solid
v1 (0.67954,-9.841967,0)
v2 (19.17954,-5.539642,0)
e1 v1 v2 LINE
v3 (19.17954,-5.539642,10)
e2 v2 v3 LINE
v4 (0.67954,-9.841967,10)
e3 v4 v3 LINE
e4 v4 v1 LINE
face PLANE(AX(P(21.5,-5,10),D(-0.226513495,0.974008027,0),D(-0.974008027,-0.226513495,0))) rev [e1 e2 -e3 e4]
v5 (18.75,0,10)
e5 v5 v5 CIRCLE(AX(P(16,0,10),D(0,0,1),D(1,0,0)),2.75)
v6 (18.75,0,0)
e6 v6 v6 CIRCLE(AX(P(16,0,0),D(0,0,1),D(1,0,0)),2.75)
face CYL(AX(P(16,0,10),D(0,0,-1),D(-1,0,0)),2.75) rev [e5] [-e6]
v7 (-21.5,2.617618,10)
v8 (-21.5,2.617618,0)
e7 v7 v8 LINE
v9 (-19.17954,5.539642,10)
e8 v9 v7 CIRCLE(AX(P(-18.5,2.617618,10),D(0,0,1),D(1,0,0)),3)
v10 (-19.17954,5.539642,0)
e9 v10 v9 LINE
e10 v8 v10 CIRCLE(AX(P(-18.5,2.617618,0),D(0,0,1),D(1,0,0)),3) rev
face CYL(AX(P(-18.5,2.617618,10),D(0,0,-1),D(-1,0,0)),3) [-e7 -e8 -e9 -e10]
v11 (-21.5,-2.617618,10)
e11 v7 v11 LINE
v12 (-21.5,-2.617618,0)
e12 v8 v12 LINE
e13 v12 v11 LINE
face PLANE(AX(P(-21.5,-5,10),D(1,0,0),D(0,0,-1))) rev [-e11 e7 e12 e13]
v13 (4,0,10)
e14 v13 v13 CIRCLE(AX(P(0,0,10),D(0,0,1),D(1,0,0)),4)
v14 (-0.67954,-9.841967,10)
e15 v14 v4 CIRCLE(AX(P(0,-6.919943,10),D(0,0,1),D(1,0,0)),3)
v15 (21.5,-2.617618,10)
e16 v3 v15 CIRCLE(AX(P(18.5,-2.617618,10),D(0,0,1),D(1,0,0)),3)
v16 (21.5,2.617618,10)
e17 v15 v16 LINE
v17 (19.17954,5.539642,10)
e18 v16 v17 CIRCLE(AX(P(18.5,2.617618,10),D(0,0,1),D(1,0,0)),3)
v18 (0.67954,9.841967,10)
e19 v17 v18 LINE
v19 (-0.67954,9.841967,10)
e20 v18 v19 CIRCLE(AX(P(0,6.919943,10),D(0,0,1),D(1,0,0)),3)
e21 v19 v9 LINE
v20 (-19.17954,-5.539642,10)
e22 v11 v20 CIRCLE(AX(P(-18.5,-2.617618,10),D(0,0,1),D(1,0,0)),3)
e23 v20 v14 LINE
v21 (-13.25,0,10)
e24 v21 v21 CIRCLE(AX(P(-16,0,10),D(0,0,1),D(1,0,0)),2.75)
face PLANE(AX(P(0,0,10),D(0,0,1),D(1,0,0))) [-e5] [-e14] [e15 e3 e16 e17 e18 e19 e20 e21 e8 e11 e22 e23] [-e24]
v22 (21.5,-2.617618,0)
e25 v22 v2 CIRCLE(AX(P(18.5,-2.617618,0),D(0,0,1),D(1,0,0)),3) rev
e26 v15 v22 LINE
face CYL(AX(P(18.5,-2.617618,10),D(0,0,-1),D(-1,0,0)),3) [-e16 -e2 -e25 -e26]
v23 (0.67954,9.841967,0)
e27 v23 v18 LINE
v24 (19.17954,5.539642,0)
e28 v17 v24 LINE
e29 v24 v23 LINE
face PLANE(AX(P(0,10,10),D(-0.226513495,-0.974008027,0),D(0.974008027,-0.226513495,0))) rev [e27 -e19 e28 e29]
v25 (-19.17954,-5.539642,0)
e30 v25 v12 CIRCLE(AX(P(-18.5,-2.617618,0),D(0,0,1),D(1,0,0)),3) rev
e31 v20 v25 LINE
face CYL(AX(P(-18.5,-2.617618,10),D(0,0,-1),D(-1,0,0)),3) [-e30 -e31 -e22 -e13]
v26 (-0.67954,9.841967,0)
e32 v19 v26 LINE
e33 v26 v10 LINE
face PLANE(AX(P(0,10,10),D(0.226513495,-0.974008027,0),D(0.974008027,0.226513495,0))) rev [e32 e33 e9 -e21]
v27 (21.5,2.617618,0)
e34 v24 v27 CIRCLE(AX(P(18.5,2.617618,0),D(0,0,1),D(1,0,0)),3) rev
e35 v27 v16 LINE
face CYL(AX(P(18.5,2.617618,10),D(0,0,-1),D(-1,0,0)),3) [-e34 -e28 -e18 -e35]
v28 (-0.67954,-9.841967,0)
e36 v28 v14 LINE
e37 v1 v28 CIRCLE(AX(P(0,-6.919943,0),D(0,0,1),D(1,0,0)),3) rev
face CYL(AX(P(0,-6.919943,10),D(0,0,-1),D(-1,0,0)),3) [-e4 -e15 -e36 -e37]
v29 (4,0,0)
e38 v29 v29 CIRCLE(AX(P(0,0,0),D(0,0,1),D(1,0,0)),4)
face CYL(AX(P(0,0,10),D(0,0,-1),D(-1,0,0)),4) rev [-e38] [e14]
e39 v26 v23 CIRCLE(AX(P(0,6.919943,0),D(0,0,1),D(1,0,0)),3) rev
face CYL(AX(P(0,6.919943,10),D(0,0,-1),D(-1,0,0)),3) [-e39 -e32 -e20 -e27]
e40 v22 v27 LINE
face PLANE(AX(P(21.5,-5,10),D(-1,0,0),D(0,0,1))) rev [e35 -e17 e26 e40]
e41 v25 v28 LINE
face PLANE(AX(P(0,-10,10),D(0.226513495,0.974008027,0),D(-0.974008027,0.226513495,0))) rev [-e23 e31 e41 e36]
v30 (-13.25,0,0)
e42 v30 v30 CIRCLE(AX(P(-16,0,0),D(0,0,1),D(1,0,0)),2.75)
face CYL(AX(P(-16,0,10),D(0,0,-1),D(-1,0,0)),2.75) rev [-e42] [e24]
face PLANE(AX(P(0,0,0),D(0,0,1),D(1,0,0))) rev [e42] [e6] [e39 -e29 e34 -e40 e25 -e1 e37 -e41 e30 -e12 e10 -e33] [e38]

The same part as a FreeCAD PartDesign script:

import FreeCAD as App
import Part
import Sketcher
from FreeCAD import Vector


def edges_at(feature, points):
    """Names of the edges that pass closest to the given points."""
    edges = feature.Shape.Edges
    near = lambda p: min(range(len(edges)), key=lambda i: edges[i].distToShape(Part.Vertex(*p))[0])
    return sorted({f"Edge{near(p) + 1}" for p in points})


def add_polygon(sketch, points):
    """Adds a closed chain of lines whose ends are joined by coincident constraints."""
    first, n = sketch.GeometryCount, len(points)
    for a, b in zip(points, points[1:] + points[:1]):
        sketch.addGeometry(Part.LineSegment(App.Vector(*a, 0), App.Vector(*b, 0)), False)
    for i in range(n):
        sketch.addConstraint(Sketcher.Constraint("Coincident", first + i, 2, first + (i + 1) % n, 1))

doc = App.newDocument("Part")
body = doc.addObject("PartDesign::Body", "Body")

# Sketch on XY plane
sketch1 = doc.addObject("Sketcher::SketchObject", "Sketch")
body.addObject(sketch1)
sketch1.AttachmentSupport = (doc.XY_Plane, [""])
sketch1.MapMode = "FlatFace"
add_polygon(sketch1, [(-21.5, 5), (-21.5, -5), (0, -10), (21.5, -5), (21.5, 5), (0, 10)])  # lines 0-5
sketch1.addGeometry(Part.Circle(Vector(16, 0, 0), Vector(0, 0, 1), 2.75), False)  # 6
sketch1.addGeometry(Part.Circle(Vector(0, 0, 0), Vector(0, 0, 1), 4), False)  # 7
sketch1.addGeometry(Part.Circle(Vector(-16, 0, 0), Vector(0, 0, 1), 2.75), False)  # 8
sketch1.addConstraint([
    Sketcher.Constraint("Vertical", 0),
    Sketcher.Constraint("Vertical", 3),
    Sketcher.Constraint("Coincident", 7, 3, -1, 1),
    Sketcher.Constraint("Equal", 6, 8),
    Sketcher.Constraint("Symmetric", 6, 3, 8, 3, -1, 1),
    Sketcher.Constraint("Symmetric", 0, 2, 3, 2, -1, 1),
    Sketcher.Constraint("Symmetric", 1, 2, 4, 2, -1, 1),
    Sketcher.Constraint("PointOnObject", 6, 3, -1),
    Sketcher.Constraint("PointOnObject", 1, 2, -2),
    Sketcher.Constraint("Parallel", 2, 5),
    Sketcher.Constraint("Horizontal", 0, 2, 2, 2),
    Sketcher.Constraint("Diameter", 7, 8.0),
    Sketcher.Constraint("Diameter", 6, 5.5),
    Sketcher.Constraint("DistanceY", 0, 2, 0, 1, 10.0),
    Sketcher.Constraint("DistanceX", -1, 1, 6, 3, 16.0),
    Sketcher.Constraint("DistanceY", 1, 2, -1, 1, 10.0),
    Sketcher.Constraint("DistanceX", 0, 2, 2, 2, 43.0),
])
pad1 = doc.addObject("PartDesign::Pad", "Pad")
body.addObject(pad1)
pad1.Profile = sketch1
pad1.Length = 10
doc.recompute()

fillet = doc.addObject("PartDesign::Fillet", "Fillet")
body.addObject(fillet)
fillet.Base = (pad1, edges_at(pad1, [
    (21.5, 5, 5),
    (21.5, -5, 5),
    (0, -10, 5),
    (-21.5, -5, 5),
    (-21.5, 5, 5),
    (0, 10, 5),
]))
fillet.Radius = 3

doc.recompute()
